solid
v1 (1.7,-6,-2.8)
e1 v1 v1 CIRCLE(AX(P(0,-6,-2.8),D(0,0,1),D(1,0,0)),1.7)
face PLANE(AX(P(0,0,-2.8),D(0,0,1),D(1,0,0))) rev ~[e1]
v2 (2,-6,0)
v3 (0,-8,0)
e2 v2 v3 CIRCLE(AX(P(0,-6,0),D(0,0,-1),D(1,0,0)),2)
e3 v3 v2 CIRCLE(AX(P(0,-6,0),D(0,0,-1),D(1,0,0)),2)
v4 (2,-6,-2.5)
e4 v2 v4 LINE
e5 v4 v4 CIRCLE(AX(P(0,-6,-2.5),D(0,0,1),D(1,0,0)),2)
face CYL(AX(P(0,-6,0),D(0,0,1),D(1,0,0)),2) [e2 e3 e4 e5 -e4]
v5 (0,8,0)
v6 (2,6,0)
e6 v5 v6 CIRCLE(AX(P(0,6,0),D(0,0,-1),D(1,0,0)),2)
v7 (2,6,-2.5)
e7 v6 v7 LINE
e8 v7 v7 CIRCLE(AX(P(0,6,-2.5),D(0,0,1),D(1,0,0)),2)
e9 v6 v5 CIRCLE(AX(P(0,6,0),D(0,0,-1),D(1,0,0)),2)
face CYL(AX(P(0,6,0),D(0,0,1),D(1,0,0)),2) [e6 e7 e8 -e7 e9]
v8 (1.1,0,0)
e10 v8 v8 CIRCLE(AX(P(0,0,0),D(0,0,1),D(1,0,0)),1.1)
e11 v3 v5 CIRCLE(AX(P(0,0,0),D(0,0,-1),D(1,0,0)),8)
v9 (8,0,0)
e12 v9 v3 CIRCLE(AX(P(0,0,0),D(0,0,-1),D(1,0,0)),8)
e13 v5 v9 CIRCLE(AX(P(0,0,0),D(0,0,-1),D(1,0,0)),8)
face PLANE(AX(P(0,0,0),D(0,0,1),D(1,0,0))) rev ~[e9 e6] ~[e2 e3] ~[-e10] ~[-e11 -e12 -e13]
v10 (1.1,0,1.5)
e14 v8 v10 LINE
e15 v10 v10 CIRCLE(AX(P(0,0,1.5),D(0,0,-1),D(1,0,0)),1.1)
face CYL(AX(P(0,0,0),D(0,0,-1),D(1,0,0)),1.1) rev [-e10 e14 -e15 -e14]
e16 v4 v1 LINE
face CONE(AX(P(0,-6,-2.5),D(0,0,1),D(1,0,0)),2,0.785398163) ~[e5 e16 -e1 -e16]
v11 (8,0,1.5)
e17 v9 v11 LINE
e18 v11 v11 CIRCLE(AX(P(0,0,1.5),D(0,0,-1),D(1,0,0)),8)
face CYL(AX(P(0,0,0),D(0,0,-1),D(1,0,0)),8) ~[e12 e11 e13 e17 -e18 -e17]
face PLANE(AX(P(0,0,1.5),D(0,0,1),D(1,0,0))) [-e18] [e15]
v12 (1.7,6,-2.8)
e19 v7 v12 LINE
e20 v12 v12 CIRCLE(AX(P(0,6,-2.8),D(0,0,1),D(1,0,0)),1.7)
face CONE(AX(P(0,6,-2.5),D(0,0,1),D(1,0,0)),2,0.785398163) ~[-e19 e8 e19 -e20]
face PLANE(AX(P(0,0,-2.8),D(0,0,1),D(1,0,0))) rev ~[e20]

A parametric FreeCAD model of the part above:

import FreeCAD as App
import Part
import Sketcher
from FreeCAD import Vector


def edges_at(feature, points):
    """Names of the edges that pass closest to the given points."""
    edges = feature.Shape.Edges
    near = lambda p: min(range(len(edges)), key=lambda i: edges[i].distToShape(Part.Vertex(*p))[0])
    return sorted({f"Edge{near(p) + 1}" for p in points})

doc = App.newDocument("Part")
params = doc.addObject("Spreadsheet::Sheet", "Params")
for row, (alias, value) in enumerate([
    ("sketch1_diameter", "16 mm"),
    ("pad1_length", "1.5 mm"),
    ("sketch2_diameter", "4 mm"),
    ("pad2_length", "2.8 mm"),
    ("chamfer_size", "0.3 mm"),
    ("sketch3_diameter", "2.2 mm"),
    ("pocket1_length", "10 mm"),
], start=1):
    params.set(f"A{row}", alias)
    params.set(f"B{row}", "=" + value)
    params.setAlias(f"B{row}", alias)

body = doc.addObject("PartDesign::Body", "Body")

# Sketch on XY plane
sketch1 = body.newObject("Sketcher::SketchObject", "Sketch")
sketch1.AttachmentSupport = (doc.getObject("XY_Plane"), [""])
sketch1.MapMode = "FlatFace"
sketch1.addGeometry(Part.Circle(Vector(0, 0, 0), Vector(0, 0, 1), 8), False)
sketch1.addConstraint(Sketcher.Constraint("Coincident", 0, 3, -1, 1))
sketch1.addConstraint(Sketcher.Constraint("Diameter", 0, 16.0))
sketch1.setExpression("Constraints[1]", "Params.sketch1_diameter")
pad1 = body.newObject("PartDesign::Pad", "Pad")
pad1.Profile = sketch1
pad1.setExpression("Length", "Params.pad1_length")

# Sketch on XY plane
sketch2 = body.newObject("Sketcher::SketchObject", "Sketch001")
sketch2.AttachmentSupport = (doc.getObject("XY_Plane"), [""])
sketch2.MapMode = "FlatFace"
sketch2.addGeometry(Part.Circle(Vector(0, 6, 0), Vector(0, 0, 1), 2), False)
sketch2.addGeometry(Part.Circle(Vector(0, -6, 0), Vector(0, 0, 1), 2), False)
sketch2.addConstraint(Sketcher.Constraint("Equal", 0, 1))
sketch2.addConstraint(Sketcher.Constraint("Symmetric", 0, 3, 1, 3, -1, 1))
sketch2.addConstraint(Sketcher.Constraint("PointOnObject", 0, 3, -2))
sketch2.addConstraint(Sketcher.Constraint("Diameter", 0, 4.0))
sketch2.addConstraint(Sketcher.Constraint("DistanceY", -1, 1, 0, 3, 6.0))
sketch2.setExpression("Constraints[3]", "Params.sketch2_diameter")
pad2 = body.newObject("PartDesign::Pad", "Pad001")
pad2.Profile = sketch2
pad2.setExpression("Length", "Params.pad2_length")
pad2.Reversed = True
doc.recompute()

chamfer = body.newObject("PartDesign::Chamfer", "Chamfer")
chamfer.Base = (pad2, edges_at(pad2, [(-2, 6, -2.8), (-2, -6, -2.8)]))
chamfer.setExpression("Size", "Params.chamfer_size")

# Sketch on XY plane
sketch3 = body.newObject("Sketcher::SketchObject", "Sketch002")
sketch3.AttachmentSupport = (doc.getObject("XY_Plane"), [""])
sketch3.MapMode = "FlatFace"
sketch3.addGeometry(Part.Circle(Vector(0, 0, 0), Vector(0, 0, 1), 1.1), False)
sketch3.addConstraint(Sketcher.Constraint("Coincident", 0, 3, -1, 1))
sketch3.addConstraint(Sketcher.Constraint("Diameter", 0, 2.2))
sketch3.setExpression("Constraints[1]", "Params.sketch3_diameter")
pocket1 = body.newObject("PartDesign::Pocket", "Pocket")
pocket1.Profile = sketch3
pocket1.setExpression("Length", "Params.pocket1_length")
pocket1.Reversed = True

doc.recompute()
